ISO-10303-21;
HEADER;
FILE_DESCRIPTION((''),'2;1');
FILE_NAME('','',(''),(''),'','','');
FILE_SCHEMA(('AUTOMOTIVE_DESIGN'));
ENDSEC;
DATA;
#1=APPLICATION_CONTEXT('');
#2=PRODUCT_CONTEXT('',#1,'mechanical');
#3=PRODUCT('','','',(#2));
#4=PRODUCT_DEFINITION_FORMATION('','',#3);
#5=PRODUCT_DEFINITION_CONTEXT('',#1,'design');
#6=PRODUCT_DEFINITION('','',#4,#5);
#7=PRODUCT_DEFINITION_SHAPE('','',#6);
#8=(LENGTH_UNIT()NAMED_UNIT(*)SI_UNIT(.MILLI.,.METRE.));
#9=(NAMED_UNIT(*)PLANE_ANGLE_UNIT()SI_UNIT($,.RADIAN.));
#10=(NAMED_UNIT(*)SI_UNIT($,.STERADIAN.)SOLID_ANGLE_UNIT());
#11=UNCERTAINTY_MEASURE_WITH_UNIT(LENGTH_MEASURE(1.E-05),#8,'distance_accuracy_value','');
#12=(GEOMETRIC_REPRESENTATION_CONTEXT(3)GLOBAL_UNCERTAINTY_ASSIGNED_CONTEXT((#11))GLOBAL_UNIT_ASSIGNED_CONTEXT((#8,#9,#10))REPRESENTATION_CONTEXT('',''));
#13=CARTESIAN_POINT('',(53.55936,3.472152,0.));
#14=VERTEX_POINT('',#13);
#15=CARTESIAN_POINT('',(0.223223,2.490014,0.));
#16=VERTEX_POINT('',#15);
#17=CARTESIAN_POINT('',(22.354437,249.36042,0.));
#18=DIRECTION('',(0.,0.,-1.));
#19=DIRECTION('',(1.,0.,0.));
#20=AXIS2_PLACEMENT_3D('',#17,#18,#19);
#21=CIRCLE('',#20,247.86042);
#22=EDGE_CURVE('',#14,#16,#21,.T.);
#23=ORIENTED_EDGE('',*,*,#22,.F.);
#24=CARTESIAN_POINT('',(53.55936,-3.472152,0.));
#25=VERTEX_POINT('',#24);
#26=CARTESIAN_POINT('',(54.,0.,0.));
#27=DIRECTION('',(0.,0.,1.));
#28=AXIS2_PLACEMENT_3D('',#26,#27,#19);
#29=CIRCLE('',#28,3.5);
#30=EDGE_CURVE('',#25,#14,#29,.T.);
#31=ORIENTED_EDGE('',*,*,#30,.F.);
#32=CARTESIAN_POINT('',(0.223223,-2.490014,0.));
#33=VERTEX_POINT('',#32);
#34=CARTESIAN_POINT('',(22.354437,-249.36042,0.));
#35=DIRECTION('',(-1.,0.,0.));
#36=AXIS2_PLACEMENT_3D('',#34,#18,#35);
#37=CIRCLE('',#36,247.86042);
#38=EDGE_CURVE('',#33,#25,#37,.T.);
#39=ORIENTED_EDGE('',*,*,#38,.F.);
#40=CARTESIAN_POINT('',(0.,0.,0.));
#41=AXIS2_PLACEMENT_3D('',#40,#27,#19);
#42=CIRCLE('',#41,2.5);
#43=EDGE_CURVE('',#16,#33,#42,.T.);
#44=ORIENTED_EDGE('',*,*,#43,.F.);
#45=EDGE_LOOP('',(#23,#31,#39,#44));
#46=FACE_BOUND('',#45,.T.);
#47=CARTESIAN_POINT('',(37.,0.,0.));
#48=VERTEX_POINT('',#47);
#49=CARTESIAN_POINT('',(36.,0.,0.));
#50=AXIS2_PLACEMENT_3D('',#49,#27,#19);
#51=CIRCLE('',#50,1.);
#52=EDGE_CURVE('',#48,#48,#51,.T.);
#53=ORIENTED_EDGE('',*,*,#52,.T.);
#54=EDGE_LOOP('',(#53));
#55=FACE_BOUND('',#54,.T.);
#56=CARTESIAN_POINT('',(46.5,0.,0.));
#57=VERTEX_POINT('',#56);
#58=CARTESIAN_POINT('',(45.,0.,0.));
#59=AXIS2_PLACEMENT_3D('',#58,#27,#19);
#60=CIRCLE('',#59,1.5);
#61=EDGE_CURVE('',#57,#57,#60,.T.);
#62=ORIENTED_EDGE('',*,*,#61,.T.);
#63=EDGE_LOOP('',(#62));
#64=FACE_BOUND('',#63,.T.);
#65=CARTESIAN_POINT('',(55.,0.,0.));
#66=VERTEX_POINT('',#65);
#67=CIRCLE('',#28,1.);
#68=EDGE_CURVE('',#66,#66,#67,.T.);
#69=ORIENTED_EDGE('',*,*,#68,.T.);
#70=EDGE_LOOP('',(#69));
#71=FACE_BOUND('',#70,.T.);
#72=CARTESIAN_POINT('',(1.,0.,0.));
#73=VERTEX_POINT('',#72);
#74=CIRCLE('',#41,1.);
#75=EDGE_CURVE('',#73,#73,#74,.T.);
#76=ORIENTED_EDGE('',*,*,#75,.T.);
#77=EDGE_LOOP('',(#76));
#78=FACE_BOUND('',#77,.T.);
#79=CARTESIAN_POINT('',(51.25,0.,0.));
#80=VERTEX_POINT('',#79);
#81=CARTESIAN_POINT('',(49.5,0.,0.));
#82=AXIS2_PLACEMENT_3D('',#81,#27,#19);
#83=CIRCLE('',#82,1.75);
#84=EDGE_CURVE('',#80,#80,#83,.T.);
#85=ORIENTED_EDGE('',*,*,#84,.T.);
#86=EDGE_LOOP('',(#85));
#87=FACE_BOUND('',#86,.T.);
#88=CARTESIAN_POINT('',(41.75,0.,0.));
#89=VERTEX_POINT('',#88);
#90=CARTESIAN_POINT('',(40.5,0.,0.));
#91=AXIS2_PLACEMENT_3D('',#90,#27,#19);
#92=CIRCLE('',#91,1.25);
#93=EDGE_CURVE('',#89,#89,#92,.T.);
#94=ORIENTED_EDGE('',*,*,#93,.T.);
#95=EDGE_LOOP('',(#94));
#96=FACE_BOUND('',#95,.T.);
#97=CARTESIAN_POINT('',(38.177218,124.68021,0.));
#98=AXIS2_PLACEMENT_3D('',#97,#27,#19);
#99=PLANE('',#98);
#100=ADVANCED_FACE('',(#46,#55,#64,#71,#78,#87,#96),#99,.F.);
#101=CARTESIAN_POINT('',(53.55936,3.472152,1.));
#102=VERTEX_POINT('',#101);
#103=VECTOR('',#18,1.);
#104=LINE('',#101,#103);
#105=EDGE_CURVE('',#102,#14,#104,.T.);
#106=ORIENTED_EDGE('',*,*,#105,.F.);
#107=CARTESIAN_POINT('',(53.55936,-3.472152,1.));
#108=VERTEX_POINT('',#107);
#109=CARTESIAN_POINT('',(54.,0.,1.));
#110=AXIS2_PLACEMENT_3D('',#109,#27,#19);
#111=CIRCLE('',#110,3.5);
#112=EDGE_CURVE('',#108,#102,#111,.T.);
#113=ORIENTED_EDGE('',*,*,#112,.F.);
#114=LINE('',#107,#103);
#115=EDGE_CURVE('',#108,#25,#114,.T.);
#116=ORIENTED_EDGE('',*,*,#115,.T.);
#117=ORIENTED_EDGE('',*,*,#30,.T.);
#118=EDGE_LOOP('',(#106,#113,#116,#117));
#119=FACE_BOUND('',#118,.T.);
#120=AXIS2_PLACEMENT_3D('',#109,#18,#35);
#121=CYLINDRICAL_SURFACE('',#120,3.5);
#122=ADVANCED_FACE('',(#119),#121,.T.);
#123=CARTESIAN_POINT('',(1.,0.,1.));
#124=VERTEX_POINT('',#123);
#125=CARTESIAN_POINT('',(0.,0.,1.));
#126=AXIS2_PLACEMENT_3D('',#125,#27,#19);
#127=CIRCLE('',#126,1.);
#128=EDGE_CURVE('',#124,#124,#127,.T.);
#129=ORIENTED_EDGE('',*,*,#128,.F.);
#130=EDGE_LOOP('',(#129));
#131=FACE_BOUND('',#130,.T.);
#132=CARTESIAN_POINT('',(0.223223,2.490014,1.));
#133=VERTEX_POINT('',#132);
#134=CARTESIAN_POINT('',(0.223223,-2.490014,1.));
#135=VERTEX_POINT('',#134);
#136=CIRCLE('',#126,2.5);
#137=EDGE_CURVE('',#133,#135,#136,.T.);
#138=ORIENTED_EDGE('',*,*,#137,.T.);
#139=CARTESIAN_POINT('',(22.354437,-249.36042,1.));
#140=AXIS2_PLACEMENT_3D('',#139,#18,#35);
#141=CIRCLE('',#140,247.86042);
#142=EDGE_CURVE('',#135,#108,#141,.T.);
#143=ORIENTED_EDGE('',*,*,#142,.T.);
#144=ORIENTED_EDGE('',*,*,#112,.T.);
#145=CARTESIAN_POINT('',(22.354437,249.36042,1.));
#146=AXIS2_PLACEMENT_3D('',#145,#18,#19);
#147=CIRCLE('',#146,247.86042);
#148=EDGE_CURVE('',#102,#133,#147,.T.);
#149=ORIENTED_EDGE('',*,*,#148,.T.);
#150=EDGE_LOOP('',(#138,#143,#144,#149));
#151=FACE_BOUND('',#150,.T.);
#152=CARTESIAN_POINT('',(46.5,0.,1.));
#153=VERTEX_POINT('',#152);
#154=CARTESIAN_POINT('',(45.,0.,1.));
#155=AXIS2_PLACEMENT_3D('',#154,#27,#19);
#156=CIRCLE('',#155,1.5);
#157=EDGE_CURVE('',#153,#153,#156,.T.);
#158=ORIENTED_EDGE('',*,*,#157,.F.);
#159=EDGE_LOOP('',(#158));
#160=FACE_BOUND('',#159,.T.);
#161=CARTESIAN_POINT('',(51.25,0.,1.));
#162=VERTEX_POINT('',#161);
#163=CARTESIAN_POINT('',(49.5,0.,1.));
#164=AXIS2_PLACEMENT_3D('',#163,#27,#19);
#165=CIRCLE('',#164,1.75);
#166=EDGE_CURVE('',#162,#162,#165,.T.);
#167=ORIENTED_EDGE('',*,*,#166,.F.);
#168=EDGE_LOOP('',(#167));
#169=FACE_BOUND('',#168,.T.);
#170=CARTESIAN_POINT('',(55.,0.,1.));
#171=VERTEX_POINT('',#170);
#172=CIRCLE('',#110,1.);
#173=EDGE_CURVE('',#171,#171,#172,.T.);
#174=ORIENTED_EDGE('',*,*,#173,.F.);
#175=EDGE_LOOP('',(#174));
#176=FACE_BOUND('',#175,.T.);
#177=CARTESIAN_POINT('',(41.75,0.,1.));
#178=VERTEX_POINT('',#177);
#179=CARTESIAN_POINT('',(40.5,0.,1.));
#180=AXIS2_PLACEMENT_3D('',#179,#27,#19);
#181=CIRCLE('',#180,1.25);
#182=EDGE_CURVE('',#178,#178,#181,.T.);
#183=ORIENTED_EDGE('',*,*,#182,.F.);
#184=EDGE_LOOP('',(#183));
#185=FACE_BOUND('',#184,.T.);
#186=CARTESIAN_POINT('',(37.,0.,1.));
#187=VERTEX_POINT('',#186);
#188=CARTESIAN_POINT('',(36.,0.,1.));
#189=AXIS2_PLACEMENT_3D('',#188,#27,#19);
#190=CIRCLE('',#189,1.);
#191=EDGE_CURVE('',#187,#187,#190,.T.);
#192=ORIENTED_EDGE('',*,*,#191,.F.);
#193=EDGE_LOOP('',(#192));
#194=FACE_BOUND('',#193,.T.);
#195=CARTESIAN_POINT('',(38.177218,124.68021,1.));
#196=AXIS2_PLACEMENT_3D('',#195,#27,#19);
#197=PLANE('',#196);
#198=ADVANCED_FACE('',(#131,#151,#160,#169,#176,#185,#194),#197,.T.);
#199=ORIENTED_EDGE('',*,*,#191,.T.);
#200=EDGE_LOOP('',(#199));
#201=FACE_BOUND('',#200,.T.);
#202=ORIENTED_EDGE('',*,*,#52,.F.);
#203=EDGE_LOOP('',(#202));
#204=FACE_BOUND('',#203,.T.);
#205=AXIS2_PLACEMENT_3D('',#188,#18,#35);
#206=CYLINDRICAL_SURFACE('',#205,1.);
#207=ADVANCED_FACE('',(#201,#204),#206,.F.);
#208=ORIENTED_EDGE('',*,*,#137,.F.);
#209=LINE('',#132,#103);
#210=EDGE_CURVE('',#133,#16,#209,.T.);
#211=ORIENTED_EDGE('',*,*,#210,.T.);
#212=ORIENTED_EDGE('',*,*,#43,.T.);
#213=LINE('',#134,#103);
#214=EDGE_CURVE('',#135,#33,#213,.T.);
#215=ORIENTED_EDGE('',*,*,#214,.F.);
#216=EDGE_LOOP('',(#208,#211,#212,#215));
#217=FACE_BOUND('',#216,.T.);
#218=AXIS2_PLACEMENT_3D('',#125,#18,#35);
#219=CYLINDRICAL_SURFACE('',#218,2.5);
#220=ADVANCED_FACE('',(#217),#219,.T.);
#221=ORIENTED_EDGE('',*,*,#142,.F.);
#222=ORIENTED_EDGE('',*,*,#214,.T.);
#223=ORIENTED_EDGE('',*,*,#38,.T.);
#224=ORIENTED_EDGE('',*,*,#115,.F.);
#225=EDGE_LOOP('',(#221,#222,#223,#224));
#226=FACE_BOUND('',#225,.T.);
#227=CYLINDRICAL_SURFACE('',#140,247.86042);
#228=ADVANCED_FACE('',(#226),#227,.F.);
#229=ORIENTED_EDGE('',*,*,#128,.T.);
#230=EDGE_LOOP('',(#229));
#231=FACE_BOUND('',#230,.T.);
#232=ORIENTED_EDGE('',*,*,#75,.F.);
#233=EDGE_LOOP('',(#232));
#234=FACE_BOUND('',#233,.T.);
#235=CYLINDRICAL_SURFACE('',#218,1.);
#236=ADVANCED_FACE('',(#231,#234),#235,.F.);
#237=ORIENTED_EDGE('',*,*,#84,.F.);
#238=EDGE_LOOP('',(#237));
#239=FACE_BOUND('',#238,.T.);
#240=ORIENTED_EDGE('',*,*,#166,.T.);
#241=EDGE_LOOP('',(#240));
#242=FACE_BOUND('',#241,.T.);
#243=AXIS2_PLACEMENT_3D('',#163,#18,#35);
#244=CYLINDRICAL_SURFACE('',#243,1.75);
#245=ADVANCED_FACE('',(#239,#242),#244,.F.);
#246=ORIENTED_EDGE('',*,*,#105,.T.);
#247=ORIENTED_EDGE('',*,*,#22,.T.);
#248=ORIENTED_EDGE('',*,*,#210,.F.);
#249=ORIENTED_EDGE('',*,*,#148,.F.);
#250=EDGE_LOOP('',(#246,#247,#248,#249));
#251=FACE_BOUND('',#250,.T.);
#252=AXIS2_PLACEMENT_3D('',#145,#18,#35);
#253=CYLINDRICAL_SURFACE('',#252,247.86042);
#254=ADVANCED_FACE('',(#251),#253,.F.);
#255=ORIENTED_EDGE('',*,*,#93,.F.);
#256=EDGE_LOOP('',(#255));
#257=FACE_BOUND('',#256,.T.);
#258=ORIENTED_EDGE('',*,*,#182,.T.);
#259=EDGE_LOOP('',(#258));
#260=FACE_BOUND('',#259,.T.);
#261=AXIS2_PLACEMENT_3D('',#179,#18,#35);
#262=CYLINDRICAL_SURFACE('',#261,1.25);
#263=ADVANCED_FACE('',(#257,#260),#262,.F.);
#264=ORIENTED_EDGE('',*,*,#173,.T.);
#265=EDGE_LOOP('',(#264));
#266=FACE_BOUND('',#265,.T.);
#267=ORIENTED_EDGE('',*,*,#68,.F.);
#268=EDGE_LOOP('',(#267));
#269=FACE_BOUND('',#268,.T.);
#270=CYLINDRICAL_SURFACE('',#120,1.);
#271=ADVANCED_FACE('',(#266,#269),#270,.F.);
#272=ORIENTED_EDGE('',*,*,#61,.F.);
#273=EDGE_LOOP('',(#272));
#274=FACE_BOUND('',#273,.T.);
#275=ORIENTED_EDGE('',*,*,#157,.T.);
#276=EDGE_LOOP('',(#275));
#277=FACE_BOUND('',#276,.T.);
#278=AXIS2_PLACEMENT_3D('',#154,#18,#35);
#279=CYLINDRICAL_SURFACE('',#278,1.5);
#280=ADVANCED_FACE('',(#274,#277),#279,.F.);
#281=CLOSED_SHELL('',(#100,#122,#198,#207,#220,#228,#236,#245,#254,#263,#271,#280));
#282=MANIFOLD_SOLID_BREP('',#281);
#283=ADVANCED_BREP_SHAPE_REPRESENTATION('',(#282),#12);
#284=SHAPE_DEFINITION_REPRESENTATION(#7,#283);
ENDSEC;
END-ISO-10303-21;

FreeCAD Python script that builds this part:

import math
import FreeCAD as App
import Part
import Sketcher

V = App.Vector

doc = App.newDocument("Part")
body = doc.addObject("PartDesign::Body", "Body")

# Sketch on XY plane
sketch1 = body.newObject("Sketcher::SketchObject", "Sketch")
sketch1.AttachmentSupport = (doc.getObject("XY_Plane"), [""])
sketch1.MapMode = "FlatFace"
sketch1.addGeometry(Part.ArcOfCircle(Part.Circle(V(0, 0, 0), V(0, 0, 1), 2.5), math.radians(84.877294), math.radians(275.122706)), False)
sketch1.addGeometry(Part.ArcOfCircle(Part.Circle(V(22.354437, -249.36042, 0), V(0, 0, 1), 247.86042), math.radians(82.767431), math.radians(95.122706)), False)
sketch1.addGeometry(Part.ArcOfCircle(Part.Circle(V(54, 0, 0), V(0, 0, 1), 3.5), math.radians(-97.232569), math.radians(97.232569)), False)
sketch1.addGeometry(Part.ArcOfCircle(Part.Circle(V(22.354437, 249.36042, 0), V(0, 0, 1), 247.86042), math.radians(-95.122706), math.radians(-82.767431)), False)
sketch1.addGeometry(Part.Circle(V(0, 0, 0), V(0, 0, 1), 1), False)
sketch1.addGeometry(Part.Circle(V(36, 0, 0), V(0, 0, 1), 1), False)
sketch1.addGeometry(Part.Circle(V(40.5, 0, 0), V(0, 0, 1), 1.25), False)
sketch1.addGeometry(Part.Circle(V(45, 0, 0), V(0, 0, 1), 1.5), False)
sketch1.addGeometry(Part.Circle(V(49.5, 0, 0), V(0, 0, 1), 1.75), False)
sketch1.addGeometry(Part.Circle(V(54, 0, 0), V(0, 0, 1), 1), False)
sketch1.addConstraint(Sketcher.Constraint("Tangent", 0, 2, 1, 2))
sketch1.addConstraint(Sketcher.Constraint("Tangent", 1, 1, 2, 1))
sketch1.addConstraint(Sketcher.Constraint("Tangent", 2, 2, 3, 2))
sketch1.addConstraint(Sketcher.Constraint("Tangent", 3, 1, 0, 1))
sketch1.addConstraint(Sketcher.Constraint("Coincident", 0, 3, -1, 1))
sketch1.addConstraint(Sketcher.Constraint("Coincident", 4, 3, -1, 1))
sketch1.addConstraint(Sketcher.Constraint("Coincident", 9, 3, 2, 3))
sketch1.addConstraint(Sketcher.Constraint("Equal", 1, 3))
sketch1.addConstraint(Sketcher.Constraint("Equal", 4, 5))
sketch1.addConstraint(Sketcher.Constraint("Equal", 5, 9))
sketch1.addConstraint(Sketcher.Constraint("PointOnObject", 2, 3, -1))
sketch1.addConstraint(Sketcher.Constraint("PointOnObject", 5, 3, -1))
sketch1.addConstraint(Sketcher.Constraint("PointOnObject", 6, 3, -1))
sketch1.addConstraint(Sketcher.Constraint("PointOnObject", 7, 3, -1))
sketch1.addConstraint(Sketcher.Constraint("PointOnObject", 8, 3, -1))
sketch1.addConstraint(Sketcher.Constraint("Diameter", 4, 2.0))
sketch1.addConstraint(Sketcher.Constraint("Diameter", 7, 3.0))
sketch1.addConstraint(Sketcher.Constraint("Diameter", 6, 2.5))
sketch1.addConstraint(Sketcher.Constraint("Diameter", 8, 3.5))
sketch1.addConstraint(Sketcher.Constraint("Radius", 0, 2.5))
sketch1.addConstraint(Sketcher.Constraint("Radius", 2, 3.5))
sketch1.addConstraint(Sketcher.Constraint("DistanceX", -1, 1, 2, 3, 54.0))
sketch1.addConstraint(Sketcher.Constraint("DistanceX", -1, 1, 5, 3, 36.0))
sketch1.addConstraint(Sketcher.Constraint("DistanceX", -1, 1, 7, 3, 45.0))
sketch1.addConstraint(Sketcher.Constraint("DistanceX", 6, 3, 8, 3, 9.0))
sketch1.addConstraint(Sketcher.Constraint("DistanceX", -1, 1, 6, 3, 40.5))
sketch1.addConstraint(Sketcher.Constraint("Radius", 1, 247.86042))
pad1 = body.newObject("PartDesign::Pad", "Pad")
pad1.Profile = sketch1
pad1.Length = 1

doc.recompute()
